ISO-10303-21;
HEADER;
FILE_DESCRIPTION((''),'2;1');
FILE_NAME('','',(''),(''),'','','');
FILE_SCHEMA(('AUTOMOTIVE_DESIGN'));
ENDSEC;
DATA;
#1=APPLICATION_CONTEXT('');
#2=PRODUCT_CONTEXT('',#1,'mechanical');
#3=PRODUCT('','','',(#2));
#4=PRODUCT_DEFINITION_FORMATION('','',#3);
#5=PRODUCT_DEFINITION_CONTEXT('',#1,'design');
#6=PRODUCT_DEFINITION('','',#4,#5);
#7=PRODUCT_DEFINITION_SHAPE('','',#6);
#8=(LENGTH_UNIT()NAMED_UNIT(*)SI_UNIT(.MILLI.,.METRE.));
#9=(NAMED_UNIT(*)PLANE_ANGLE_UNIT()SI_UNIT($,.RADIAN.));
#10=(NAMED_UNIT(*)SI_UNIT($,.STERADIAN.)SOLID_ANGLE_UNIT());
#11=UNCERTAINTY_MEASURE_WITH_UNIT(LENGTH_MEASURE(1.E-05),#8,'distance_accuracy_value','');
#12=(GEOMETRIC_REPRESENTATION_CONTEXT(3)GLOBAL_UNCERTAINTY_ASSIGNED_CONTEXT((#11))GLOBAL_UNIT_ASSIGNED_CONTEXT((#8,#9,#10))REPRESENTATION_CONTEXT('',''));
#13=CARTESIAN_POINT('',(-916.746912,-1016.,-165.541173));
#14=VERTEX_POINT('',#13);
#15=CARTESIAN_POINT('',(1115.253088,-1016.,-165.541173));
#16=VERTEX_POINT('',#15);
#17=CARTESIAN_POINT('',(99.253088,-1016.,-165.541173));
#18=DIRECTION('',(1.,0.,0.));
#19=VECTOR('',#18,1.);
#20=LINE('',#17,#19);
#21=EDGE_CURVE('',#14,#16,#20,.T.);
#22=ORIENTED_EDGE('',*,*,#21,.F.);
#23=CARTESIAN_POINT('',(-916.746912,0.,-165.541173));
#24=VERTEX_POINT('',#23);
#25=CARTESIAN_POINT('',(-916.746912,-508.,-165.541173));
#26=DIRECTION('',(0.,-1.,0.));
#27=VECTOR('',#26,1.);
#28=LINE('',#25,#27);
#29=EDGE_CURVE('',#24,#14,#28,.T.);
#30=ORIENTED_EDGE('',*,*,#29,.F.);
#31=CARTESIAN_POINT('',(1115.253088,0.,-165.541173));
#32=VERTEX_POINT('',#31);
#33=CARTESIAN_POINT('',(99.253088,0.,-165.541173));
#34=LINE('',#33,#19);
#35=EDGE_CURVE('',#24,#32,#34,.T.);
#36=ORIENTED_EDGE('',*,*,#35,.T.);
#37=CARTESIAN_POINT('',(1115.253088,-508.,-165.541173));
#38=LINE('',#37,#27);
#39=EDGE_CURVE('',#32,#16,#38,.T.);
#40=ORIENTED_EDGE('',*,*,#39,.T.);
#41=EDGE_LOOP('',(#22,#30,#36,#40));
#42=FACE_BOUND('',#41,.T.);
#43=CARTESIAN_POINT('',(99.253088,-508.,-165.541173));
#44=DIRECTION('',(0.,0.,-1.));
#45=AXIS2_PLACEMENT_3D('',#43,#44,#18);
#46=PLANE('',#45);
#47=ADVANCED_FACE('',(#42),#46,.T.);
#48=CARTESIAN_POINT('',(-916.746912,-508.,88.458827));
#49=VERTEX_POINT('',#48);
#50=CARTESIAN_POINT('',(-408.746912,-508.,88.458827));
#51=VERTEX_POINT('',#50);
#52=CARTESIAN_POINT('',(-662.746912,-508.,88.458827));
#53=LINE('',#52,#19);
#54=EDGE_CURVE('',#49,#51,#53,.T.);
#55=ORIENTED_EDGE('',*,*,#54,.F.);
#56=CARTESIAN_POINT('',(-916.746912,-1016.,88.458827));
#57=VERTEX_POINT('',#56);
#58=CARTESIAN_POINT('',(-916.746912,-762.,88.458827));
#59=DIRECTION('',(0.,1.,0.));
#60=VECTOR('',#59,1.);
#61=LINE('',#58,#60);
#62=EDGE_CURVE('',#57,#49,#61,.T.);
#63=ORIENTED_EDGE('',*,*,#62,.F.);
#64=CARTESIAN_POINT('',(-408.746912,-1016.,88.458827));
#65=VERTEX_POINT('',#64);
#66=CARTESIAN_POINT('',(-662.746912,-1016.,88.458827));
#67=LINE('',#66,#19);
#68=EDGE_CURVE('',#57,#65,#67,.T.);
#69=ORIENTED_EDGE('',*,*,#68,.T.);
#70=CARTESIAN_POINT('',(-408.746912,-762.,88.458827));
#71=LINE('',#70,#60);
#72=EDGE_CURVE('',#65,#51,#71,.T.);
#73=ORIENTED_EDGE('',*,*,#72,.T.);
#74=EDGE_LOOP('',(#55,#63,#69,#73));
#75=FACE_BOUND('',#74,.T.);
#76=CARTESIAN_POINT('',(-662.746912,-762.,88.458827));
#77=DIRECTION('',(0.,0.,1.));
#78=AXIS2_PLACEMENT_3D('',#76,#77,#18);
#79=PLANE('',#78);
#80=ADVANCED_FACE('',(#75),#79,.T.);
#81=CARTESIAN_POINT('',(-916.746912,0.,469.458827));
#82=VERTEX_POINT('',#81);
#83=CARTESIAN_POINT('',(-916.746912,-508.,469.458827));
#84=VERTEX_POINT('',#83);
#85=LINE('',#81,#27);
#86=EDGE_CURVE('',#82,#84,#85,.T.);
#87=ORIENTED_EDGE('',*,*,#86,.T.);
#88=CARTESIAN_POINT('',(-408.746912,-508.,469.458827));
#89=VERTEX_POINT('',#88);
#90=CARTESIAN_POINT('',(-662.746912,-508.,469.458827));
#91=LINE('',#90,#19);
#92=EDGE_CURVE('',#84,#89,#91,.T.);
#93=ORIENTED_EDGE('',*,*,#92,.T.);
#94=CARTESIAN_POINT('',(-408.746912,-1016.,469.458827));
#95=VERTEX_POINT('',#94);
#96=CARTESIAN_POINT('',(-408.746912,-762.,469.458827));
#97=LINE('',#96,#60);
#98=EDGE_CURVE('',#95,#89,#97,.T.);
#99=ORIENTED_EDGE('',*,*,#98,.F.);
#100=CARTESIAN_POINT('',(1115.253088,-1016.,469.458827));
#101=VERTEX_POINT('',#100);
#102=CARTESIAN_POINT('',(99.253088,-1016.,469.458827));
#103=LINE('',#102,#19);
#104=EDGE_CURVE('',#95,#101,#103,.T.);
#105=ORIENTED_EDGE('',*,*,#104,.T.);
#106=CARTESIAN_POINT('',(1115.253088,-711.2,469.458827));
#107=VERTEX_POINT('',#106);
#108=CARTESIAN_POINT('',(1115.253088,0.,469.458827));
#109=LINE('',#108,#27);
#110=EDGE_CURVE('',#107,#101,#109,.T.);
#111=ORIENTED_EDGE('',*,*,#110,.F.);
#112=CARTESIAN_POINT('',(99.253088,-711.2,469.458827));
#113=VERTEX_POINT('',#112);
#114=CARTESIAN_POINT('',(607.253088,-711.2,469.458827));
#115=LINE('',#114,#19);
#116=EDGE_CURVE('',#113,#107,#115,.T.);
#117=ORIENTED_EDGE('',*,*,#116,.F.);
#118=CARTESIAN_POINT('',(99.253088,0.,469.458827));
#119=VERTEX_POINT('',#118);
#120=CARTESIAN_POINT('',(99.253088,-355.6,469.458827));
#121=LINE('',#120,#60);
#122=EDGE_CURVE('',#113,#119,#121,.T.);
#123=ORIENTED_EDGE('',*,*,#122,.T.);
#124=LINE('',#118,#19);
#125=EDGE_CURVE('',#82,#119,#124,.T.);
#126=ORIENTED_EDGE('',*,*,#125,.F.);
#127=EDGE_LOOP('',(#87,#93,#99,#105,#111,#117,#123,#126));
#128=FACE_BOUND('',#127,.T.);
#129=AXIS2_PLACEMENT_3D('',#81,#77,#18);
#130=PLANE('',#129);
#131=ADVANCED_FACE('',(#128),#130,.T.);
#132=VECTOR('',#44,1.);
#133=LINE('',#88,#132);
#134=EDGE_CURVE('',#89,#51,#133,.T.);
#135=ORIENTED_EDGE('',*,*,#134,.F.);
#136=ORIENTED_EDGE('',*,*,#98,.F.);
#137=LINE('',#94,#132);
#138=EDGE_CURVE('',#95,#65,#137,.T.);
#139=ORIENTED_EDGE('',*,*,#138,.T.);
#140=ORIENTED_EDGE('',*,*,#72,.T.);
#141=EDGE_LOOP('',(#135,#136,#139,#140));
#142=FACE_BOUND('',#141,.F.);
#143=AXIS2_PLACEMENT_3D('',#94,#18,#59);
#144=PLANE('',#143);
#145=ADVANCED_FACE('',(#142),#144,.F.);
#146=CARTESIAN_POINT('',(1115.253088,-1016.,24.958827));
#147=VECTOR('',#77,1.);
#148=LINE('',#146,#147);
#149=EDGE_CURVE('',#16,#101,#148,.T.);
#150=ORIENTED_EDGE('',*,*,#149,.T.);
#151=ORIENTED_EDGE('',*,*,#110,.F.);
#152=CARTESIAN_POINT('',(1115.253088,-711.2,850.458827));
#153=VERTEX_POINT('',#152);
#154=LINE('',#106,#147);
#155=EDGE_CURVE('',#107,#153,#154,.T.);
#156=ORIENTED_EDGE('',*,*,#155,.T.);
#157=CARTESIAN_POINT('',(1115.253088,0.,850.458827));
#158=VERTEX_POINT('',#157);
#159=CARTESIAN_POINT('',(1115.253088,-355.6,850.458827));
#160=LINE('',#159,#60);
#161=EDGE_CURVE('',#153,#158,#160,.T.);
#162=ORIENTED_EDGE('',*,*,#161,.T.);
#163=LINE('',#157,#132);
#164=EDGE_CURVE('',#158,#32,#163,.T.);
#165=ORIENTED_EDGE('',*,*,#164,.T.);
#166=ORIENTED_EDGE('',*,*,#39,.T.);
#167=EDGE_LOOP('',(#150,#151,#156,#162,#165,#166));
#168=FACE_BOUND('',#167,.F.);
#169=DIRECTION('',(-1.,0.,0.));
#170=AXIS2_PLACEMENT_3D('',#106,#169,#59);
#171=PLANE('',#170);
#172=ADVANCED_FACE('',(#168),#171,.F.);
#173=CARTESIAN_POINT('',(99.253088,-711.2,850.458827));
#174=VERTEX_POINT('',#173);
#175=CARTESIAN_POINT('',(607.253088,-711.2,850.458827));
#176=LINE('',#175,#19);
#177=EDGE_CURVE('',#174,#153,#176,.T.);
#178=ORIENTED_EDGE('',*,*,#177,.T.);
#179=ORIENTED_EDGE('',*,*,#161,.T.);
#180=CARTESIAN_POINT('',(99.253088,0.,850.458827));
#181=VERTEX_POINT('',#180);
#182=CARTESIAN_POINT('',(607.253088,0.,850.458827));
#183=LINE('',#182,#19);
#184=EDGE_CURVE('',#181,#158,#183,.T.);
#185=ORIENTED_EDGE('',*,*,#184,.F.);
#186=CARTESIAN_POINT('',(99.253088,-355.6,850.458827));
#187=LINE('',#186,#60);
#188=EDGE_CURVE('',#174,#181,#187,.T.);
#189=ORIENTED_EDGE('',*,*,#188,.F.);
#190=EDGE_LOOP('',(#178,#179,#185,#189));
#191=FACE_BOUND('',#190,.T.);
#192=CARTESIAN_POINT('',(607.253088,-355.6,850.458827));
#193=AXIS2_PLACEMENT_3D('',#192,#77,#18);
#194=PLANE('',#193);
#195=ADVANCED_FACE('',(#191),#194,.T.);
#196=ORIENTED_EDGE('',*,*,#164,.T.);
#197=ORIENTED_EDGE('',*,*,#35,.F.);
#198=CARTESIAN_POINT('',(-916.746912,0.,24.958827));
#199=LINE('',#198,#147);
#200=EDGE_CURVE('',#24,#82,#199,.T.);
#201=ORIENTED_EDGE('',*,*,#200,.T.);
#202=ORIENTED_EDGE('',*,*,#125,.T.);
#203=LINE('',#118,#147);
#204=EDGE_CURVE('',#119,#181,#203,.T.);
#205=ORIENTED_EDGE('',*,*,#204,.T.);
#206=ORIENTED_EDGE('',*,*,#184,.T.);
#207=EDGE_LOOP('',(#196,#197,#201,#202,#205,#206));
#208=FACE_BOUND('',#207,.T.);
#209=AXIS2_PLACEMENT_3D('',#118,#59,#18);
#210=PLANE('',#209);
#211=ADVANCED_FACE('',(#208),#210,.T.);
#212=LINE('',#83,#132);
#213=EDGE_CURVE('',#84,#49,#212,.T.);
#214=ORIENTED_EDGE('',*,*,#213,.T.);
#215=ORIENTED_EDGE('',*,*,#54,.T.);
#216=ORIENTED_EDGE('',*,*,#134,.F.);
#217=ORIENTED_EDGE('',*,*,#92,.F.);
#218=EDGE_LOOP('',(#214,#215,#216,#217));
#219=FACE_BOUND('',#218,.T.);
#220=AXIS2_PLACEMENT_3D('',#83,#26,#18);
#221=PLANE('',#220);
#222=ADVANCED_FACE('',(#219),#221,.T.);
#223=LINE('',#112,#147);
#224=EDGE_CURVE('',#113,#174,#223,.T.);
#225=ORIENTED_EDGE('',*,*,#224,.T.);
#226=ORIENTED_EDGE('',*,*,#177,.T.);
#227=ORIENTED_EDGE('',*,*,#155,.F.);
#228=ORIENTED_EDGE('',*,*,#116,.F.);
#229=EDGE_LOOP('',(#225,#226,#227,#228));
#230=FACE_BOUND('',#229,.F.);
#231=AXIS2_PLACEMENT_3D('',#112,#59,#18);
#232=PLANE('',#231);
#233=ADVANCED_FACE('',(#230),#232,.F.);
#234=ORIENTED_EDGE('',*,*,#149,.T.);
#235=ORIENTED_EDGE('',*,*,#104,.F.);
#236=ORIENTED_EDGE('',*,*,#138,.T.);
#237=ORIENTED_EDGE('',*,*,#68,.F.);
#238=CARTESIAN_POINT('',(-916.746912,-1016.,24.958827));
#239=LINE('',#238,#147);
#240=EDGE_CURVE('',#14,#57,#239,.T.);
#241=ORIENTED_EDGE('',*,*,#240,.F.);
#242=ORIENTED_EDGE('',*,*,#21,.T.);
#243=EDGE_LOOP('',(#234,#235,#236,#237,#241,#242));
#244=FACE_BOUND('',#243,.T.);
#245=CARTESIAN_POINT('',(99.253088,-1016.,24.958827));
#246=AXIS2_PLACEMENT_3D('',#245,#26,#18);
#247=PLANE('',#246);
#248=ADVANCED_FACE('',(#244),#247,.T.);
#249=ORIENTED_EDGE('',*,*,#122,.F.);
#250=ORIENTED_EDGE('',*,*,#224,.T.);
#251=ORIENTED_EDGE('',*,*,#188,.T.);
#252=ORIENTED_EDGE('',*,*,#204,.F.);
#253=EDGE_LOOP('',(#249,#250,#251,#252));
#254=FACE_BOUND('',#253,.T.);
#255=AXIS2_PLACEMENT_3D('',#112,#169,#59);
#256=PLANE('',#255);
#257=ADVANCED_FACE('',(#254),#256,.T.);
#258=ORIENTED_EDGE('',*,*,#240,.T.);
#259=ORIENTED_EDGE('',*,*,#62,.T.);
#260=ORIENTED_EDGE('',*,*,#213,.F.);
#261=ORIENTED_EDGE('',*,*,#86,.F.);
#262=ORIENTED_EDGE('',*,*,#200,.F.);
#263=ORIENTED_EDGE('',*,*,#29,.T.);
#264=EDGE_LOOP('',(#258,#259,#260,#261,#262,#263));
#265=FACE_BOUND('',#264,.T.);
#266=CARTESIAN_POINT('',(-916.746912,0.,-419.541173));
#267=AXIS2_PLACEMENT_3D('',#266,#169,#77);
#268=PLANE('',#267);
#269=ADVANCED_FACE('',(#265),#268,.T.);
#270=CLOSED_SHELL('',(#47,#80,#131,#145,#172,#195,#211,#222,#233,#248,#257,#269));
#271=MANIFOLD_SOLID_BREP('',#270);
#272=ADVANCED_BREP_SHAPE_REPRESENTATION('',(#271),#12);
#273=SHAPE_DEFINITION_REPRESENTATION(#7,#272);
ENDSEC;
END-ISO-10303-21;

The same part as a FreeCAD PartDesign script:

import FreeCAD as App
import Part
import Sketcher
Q = App.Units.Quantity

doc = App.newDocument("Part")
body = doc.addObject("PartDesign::Body", "Body")

# Sketch on XZ plane
sketch1 = body.newObject("Sketcher::SketchObject", "Sketch")
sketch1.AttachmentSupport = (doc.getObject("XZ_Plane"), [""])
sketch1.MapMode = "FlatFace"
sketch1.addGeometry([
    Part.LineSegment(App.Vector(-917, 469, 0), App.Vector(-917, -420, 0)),
    Part.LineSegment(App.Vector(-917, -420, 0), App.Vector(1115, -420, 0)),
    Part.LineSegment(App.Vector(1115, -420, 0), App.Vector(1115, 469, 0)),
    Part.LineSegment(App.Vector(1115, 469, 0), App.Vector(-917, 469, 0)),
], False)
sketch1.addConstraint([
    Sketcher.Constraint("Coincident", 0, 2, 1, 1),
    Sketcher.Constraint("Coincident", 1, 2, 2, 1),
    Sketcher.Constraint("Coincident", 2, 2, 3, 1),
    Sketcher.Constraint("Coincident", 3, 2, 0, 1),
    Sketcher.Constraint("Vertical", 0),
    Sketcher.Constraint("Horizontal", 1),
    Sketcher.Constraint("Vertical", 2),
    Sketcher.Constraint("Horizontal", 3),
    Sketcher.Constraint("DistanceX", 1, 1, 1, 2, Q("80 in")),
    Sketcher.Constraint("DistanceY", 0, 2, 0, 1, Q("35 in")),
    Sketcher.Constraint("DistanceX", 0, 2, -1, 1, Q("916.746912 mm")),
    Sketcher.Constraint("DistanceY", 0, 2, -1, 1, Q("419.541173 mm")),
])
pad1 = body.newObject("PartDesign::Pad", "Pad")
pad1.Profile = sketch1
pad1.Length = Q("40 in")

# Sketch on XY plane
sketch2 = body.newObject("Sketcher::SketchObject", "Sketch001")
sketch2.AttachmentSupport = (doc.getObject("XY_Plane"), [""])
sketch2.MapMode = "FlatFace"
sketch2.AttachmentOffset = App.Placement(App.Vector(0, 0, 469.458827), App.Rotation())
sketch2.addGeometry([
    Part.LineSegment(App.Vector(99, 0, 0), App.Vector(99, -711, 0)),
    Part.LineSegment(App.Vector(99, -711, 0), App.Vector(1115, -711, 0)),
    Part.LineSegment(App.Vector(1115, -711, 0), App.Vector(1115, 0, 0)),
    Part.LineSegment(App.Vector(1115, 0, 0), App.Vector(99, 0, 0)),
], False)
sketch2.addConstraint([
    Sketcher.Constraint("Coincident", 0, 2, 1, 1),
    Sketcher.Constraint("Coincident", 1, 2, 2, 1),
    Sketcher.Constraint("Coincident", 2, 2, 3, 1),
    Sketcher.Constraint("Coincident", 3, 2, 0, 1),
    Sketcher.Constraint("Vertical", 0),
    Sketcher.Constraint("Horizontal", 1),
    Sketcher.Constraint("Vertical", 2),
    Sketcher.Constraint("Horizontal", 3),
    Sketcher.Constraint("PointOnObject", 2, 2, -1),
    Sketcher.Constraint("DistanceX", 1, 1, 1, 2, Q("40 in")),
    Sketcher.Constraint("DistanceY", 0, 2, 0, 1, Q("28 in")),
    Sketcher.Constraint("DistanceX", -1, 1, 0, 2, Q("99.253088 mm")),
])
pad2 = body.newObject("PartDesign::Pad", "Pad001")
pad2.Profile = sketch2
pad2.Length = Q("15 in")

# Sketch on XY plane
sketch3 = body.newObject("Sketcher::SketchObject", "Sketch002")
sketch3.AttachmentSupport = (doc.getObject("XY_Plane"), [""])
sketch3.MapMode = "FlatFace"
sketch3.AttachmentOffset = App.Placement(App.Vector(0, 0, 469.458827), App.Rotation())
sketch3.addGeometry([
    Part.LineSegment(App.Vector(-917, -508, 0), App.Vector(-917, -1016, 0)),
    Part.LineSegment(App.Vector(-917, -1016, 0), App.Vector(-409, -1016, 0)),
    Part.LineSegment(App.Vector(-409, -1016, 0), App.Vector(-409, -508, 0)),
    Part.LineSegment(App.Vector(-409, -508, 0), App.Vector(-917, -508, 0)),
], False)
sketch3.addConstraint([
    Sketcher.Constraint("Coincident", 0, 2, 1, 1),
    Sketcher.Constraint("Coincident", 1, 2, 2, 1),
    Sketcher.Constraint("Coincident", 2, 2, 3, 1),
    Sketcher.Constraint("Coincident", 3, 2, 0, 1),
    Sketcher.Constraint("Vertical", 0),
    Sketcher.Constraint("Horizontal", 1),
    Sketcher.Constraint("Vertical", 2),
    Sketcher.Constraint("Horizontal", 3),
    Sketcher.Constraint("Equal", 3, 0),
    Sketcher.Constraint("DistanceX", 1, 1, 1, 2, Q("20 in")),
    Sketcher.Constraint("DistanceY", 0, 2, -1, 1, Q("40 in")),
    Sketcher.Constraint("DistanceX", 0, 2, -1, 1, Q("916.746912 mm")),
])
pocket1 = body.newObject("PartDesign::Pocket", "Pocket")
pocket1.Profile = sketch3
pocket1.Length = Q("15 in")

# Sketch on XY plane
sketch4 = body.newObject("Sketcher::SketchObject", "Sketch003")
sketch4.AttachmentSupport = (doc.getObject("XY_Plane"), [""])
sketch4.MapMode = "FlatFace"
sketch4.AttachmentOffset = App.Placement(App.Vector(0, 0, -419.541173), App.Rotation())
sketch4.addGeometry([
    Part.LineSegment(App.Vector(-917, -1016, 0), App.Vector(-917, 0, 0)),
    Part.LineSegment(App.Vector(-917, 0, 0), App.Vector(1115, 0, 0)),
    Part.LineSegment(App.Vector(1115, 0, 0), App.Vector(1115, -1016, 0)),
    Part.LineSegment(App.Vector(1115, -1016, 0), App.Vector(-917, -1016, 0)),
], False)
sketch4.addConstraint([
    Sketcher.Constraint("Coincident", 0, 2, 1, 1),
    Sketcher.Constraint("Coincident", 1, 2, 2, 1),
    Sketcher.Constraint("Coincident", 2, 2, 3, 1),
    Sketcher.Constraint("Coincident", 3, 2, 0, 1),
    Sketcher.Constraint("Vertical", 0),
    Sketcher.Constraint("Horizontal", 1),
    Sketcher.Constraint("Vertical", 2),
    Sketcher.Constraint("Horizontal", 3),
    Sketcher.Constraint("PointOnObject", 0, 2, -1),
    Sketcher.Constraint("DistanceX", 1, 1, 1, 2, Q("80 in")),
    Sketcher.Constraint("DistanceY", 0, 1, 0, 2, Q("40 in")),
    Sketcher.Constraint("DistanceX", 0, 2, -1, 1, Q("916.746912 mm")),
])
pocket2 = body.newObject("PartDesign::Pocket", "Pocket001")
pocket2.Profile = sketch4
pocket2.Length = Q("10 in")
pocket2.Reversed = True

doc.recompute()
